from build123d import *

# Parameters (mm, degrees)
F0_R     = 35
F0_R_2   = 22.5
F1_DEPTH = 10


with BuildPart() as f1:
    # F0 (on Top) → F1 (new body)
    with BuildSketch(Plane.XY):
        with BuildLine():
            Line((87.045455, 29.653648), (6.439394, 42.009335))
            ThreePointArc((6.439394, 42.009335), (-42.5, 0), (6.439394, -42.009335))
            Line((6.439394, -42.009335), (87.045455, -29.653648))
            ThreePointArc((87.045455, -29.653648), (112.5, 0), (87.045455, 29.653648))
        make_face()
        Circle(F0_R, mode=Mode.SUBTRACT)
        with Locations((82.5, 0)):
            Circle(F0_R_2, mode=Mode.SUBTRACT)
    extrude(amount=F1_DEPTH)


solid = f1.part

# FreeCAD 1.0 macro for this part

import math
import FreeCAD as App
import Part
import Sketcher
from FreeCAD import Vector

doc = App.newDocument("Part")
params = doc.addObject("Spreadsheet::Sheet", "Params")
for row, (alias, value) in enumerate([
    ("sketch1_diameter", "70 mm"),
    ("sketch1_diameter2", "45 mm"),
    ("sketch1_radius", "30 mm"),
    ("sketch1_radius2", "42.5 mm"),
    ("pad1_length", "10 mm"),
], start=1):
    params.set(f"A{row}", alias)
    params.set(f"B{row}", "=" + value)
    params.setAlias(f"B{row}", alias)

body = doc.addObject("PartDesign::Body", "Body")

sketch1 = body.newObject("Sketcher::SketchObject", "Sketch")
sketch1.AttachmentSupport = (doc.getObject("XY_Plane"), [""])
sketch1.MapMode = "FlatFace"
sketch1.addGeometry([
    Part.LineSegment(Vector(87.045455, 29.653648, 0), Vector(6.439394, 42.009335, 0)),
    Part.ArcOfCircle(Part.Circle(Vector(0, 0, 0), Vector(0, 0, 1), 42.5), math.radians(81.285258), math.radians(278.714742)),
    Part.LineSegment(Vector(6.439394, -42.009335, 0), Vector(87.045455, -29.653648, 0)),
    Part.ArcOfCircle(Part.Circle(Vector(82.5, 0, 0), Vector(0, 0, 1), 30), math.radians(-81.285257), math.radians(81.285257)),
    Part.Circle(Vector(0, 0, 0), Vector(0, 0, 1), 35),
    Part.Circle(Vector(82.5, 0, 0), Vector(0, 0, 1), 22.5),
], False)
sketch1.addConstraint([
    Sketcher.Constraint("Tangent", 0, 2, 1, 1),
    Sketcher.Constraint("Tangent", 1, 2, 2, 1),
    Sketcher.Constraint("Tangent", 2, 2, 3, 1),
    Sketcher.Constraint("Tangent", 3, 2, 0, 1),
    Sketcher.Constraint("Coincident", 1, 3, -1, 1),
    Sketcher.Constraint("Coincident", 4, 3, -1, 1),
    Sketcher.Constraint("Coincident", 5, 3, 3, 3),
    Sketcher.Constraint("PointOnObject", 3, 3, -1),
    Sketcher.Constraint("Diameter", 4, 70.0),
    Sketcher.Constraint("Diameter", 5, 45.0),
    Sketcher.Constraint("Radius", 3, 30.0),
    Sketcher.Constraint("Radius", 1, 42.5),
    Sketcher.Constraint("DistanceX", -1, 1, 3, 3, 82.5),
])
sketch1.setExpression("Constraints[8]", "Params.sketch1_diameter")
sketch1.setExpression("Constraints[9]", "Params.sketch1_diameter2")
sketch1.setExpression("Constraints[10]", "Params.sketch1_radius")
sketch1.setExpression("Constraints[11]", "Params.sketch1_radius2")
pad1 = body.newObject("PartDesign::Pad", "Pad")
pad1.Profile = sketch1
pad1.setExpression("Length", "Params.pad1_length")

doc.recompute()
